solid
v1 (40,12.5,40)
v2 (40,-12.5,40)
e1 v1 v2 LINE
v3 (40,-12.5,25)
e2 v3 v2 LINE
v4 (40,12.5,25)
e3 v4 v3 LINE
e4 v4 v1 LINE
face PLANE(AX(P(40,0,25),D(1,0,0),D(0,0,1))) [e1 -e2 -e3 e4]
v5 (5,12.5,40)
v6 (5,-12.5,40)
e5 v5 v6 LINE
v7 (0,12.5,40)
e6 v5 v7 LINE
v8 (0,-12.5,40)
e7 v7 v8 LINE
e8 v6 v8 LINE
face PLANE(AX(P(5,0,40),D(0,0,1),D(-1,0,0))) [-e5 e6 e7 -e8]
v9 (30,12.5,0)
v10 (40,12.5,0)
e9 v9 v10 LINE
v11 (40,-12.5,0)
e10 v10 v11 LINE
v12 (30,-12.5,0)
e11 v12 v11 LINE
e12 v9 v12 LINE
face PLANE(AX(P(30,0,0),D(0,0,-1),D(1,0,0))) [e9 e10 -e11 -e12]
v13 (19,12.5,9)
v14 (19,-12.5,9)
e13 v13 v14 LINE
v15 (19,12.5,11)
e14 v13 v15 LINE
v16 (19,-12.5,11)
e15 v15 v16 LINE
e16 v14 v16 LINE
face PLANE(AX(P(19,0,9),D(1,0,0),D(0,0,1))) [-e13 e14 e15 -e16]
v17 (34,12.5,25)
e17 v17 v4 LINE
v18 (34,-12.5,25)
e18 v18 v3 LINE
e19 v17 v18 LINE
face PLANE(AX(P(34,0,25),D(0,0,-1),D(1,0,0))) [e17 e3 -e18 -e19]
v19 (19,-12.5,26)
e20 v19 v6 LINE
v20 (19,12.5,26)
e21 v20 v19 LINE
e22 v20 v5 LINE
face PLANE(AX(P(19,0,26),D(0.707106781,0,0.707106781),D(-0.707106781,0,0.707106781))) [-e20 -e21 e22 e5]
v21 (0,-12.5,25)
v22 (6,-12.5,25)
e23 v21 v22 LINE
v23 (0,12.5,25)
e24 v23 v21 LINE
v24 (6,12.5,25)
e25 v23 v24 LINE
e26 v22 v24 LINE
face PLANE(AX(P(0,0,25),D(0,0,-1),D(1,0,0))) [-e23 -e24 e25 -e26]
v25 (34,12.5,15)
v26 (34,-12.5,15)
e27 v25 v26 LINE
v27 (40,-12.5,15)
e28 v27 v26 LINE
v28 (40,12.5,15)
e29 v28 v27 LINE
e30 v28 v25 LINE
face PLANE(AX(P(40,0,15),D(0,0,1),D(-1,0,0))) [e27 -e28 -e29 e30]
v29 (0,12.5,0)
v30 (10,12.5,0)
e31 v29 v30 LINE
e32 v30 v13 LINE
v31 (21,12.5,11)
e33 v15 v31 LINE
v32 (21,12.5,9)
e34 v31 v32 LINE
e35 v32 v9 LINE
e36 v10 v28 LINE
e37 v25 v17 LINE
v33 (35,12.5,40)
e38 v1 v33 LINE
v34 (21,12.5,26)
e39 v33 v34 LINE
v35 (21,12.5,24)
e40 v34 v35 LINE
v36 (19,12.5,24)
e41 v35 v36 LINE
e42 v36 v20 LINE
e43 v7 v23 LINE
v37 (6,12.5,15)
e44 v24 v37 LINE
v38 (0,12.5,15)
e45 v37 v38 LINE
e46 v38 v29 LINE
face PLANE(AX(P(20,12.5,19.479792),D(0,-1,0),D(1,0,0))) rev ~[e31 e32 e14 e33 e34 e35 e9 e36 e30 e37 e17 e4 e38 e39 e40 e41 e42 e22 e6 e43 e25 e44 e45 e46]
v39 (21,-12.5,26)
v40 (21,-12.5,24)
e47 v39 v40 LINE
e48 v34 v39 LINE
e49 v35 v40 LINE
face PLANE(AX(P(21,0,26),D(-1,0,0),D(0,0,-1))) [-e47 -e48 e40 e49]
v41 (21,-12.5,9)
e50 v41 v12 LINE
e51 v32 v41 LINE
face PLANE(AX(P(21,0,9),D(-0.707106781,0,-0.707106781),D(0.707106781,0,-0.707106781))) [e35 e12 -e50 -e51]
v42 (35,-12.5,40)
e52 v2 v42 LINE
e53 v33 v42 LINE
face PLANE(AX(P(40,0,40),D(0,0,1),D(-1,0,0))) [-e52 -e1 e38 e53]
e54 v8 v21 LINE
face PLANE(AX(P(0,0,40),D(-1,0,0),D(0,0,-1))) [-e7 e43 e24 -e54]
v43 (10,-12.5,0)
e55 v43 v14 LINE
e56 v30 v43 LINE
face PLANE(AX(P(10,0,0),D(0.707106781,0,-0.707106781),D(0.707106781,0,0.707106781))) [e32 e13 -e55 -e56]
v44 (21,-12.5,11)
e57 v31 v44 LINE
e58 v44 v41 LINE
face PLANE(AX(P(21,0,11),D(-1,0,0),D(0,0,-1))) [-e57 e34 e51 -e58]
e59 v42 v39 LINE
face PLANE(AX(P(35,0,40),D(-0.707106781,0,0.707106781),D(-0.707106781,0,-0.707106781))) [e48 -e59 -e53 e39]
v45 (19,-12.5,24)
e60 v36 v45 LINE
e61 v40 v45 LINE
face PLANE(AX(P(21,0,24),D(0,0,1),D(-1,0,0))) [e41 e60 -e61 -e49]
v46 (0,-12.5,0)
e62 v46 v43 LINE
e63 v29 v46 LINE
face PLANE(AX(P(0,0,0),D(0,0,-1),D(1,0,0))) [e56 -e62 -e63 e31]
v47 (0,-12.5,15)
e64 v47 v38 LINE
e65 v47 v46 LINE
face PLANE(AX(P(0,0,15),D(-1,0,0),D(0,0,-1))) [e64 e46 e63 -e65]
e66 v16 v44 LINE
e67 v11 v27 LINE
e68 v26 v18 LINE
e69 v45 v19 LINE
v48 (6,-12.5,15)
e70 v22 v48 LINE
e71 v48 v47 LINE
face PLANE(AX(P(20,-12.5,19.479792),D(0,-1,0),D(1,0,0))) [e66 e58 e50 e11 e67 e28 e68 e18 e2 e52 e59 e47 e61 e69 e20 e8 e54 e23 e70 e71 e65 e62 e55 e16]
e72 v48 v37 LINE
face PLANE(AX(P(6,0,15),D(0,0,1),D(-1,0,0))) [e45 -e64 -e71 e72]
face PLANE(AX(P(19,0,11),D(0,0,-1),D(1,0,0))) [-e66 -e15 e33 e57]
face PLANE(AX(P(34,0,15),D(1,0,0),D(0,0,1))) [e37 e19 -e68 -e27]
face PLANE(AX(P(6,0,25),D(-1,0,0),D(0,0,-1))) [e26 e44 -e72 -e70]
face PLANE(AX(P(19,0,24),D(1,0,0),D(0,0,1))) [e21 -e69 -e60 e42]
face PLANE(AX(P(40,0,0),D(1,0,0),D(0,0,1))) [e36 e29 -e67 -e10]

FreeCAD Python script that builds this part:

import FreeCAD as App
import Part
import Sketcher

V = App.Vector
Q = App.Units.Quantity

doc = App.newDocument("Part")
params = doc.addObject("Spreadsheet::Sheet", "Params")
for row, (alias, value) in enumerate([
    ("sketch1_width", "10 mm"),
    ("sketch1_width2", "2 mm"),
    ("sketch1_width3", "6 mm"),
    ("sketch1_width4", "5 mm"),
    ("sketch1_height", "15 mm"),
    ("pad1_length", "25 mm"),
], start=1):
    params.set(f"A{row}", alias)
    params.set(f"B{row}", "=" + value)
    params.setAlias(f"B{row}", alias)

body = doc.addObject("PartDesign::Body", "Body")

sketch1 = body.newObject("Sketcher::SketchObject", "Sketch")
sketch1.AttachmentSupport = (doc.getObject("XZ_Plane"), [""])
sketch1.MapMode = "FlatFace"
sketch1.addGeometry([
    Part.LineSegment(V(0, 15, 0), V(0, 0, 0)),
    Part.LineSegment(V(0, 0, 0), V(10, 0, 0)),
    Part.LineSegment(V(10, 0, 0), V(19, 9, 0)),
    Part.LineSegment(V(19, 9, 0), V(19, 11, 0)),
    Part.LineSegment(V(19, 11, 0), V(21, 11, 0)),
    Part.LineSegment(V(21, 11, 0), V(21, 9, 0)),
    Part.LineSegment(V(21, 9, 0), V(30, 0, 0)),
    Part.LineSegment(V(30, 0, 0), V(40, 0, 0)),
    Part.LineSegment(V(40, 0, 0), V(40, 15, 0)),
    Part.LineSegment(V(40, 15, 0), V(34, 15, 0)),
    Part.LineSegment(V(34, 15, 0), V(34, 25, 0)),
    Part.LineSegment(V(34, 25, 0), V(40, 25, 0)),
    Part.LineSegment(V(40, 25, 0), V(40, 40, 0)),
    Part.LineSegment(V(40, 40, 0), V(35, 40, 0)),
    Part.LineSegment(V(35, 40, 0), V(21, 26, 0)),
    Part.LineSegment(V(21, 26, 0), V(21, 24, 0)),
    Part.LineSegment(V(21, 24, 0), V(19, 24, 0)),
    Part.LineSegment(V(19, 24, 0), V(19, 26, 0)),
    Part.LineSegment(V(19, 26, 0), V(5, 40, 0)),
    Part.LineSegment(V(5, 40, 0), V(0, 40, 0)),
    Part.LineSegment(V(0, 40, 0), V(0, 25, 0)),
    Part.LineSegment(V(0, 25, 0), V(6, 25, 0)),
    Part.LineSegment(V(6, 25, 0), V(6, 15, 0)),
    Part.LineSegment(V(6, 15, 0), V(0, 15, 0)),
], False)
sketch1.addConstraint([
    Sketcher.Constraint("Coincident", 0, 2, 1, 1),
    Sketcher.Constraint("Coincident", 1, 2, 2, 1),
    Sketcher.Constraint("Coincident", 2, 2, 3, 1),
    Sketcher.Constraint("Coincident", 3, 2, 4, 1),
    Sketcher.Constraint("Coincident", 4, 2, 5, 1),
    Sketcher.Constraint("Coincident", 5, 2, 6, 1),
    Sketcher.Constraint("Coincident", 6, 2, 7, 1),
    Sketcher.Constraint("Coincident", 7, 2, 8, 1),
    Sketcher.Constraint("Coincident", 8, 2, 9, 1),
    Sketcher.Constraint("Coincident", 9, 2, 10, 1),
    Sketcher.Constraint("Coincident", 10, 2, 11, 1),
    Sketcher.Constraint("Coincident", 11, 2, 12, 1),
    Sketcher.Constraint("Coincident", 12, 2, 13, 1),
    Sketcher.Constraint("Coincident", 13, 2, 14, 1),
    Sketcher.Constraint("Coincident", 14, 2, 15, 1),
    Sketcher.Constraint("Coincident", 15, 2, 16, 1),
    Sketcher.Constraint("Coincident", 16, 2, 17, 1),
    Sketcher.Constraint("Coincident", 17, 2, 18, 1),
    Sketcher.Constraint("Coincident", 18, 2, 19, 1),
    Sketcher.Constraint("Coincident", 19, 2, 20, 1),
    Sketcher.Constraint("Coincident", 20, 2, 21, 1),
    Sketcher.Constraint("Coincident", 21, 2, 22, 1),
    Sketcher.Constraint("Coincident", 22, 2, 23, 1),
    Sketcher.Constraint("Coincident", 23, 2, 0, 1),
    Sketcher.Constraint("Vertical", 0),
    Sketcher.Constraint("Horizontal", 1),
    Sketcher.Constraint("Vertical", 3),
    Sketcher.Constraint("Horizontal", 4),
    Sketcher.Constraint("Vertical", 5),
    Sketcher.Constraint("Horizontal", 7),
    Sketcher.Constraint("Vertical", 8),
    Sketcher.Constraint("Horizontal", 9),
    Sketcher.Constraint("Vertical", 10),
    Sketcher.Constraint("Horizontal", 11),
    Sketcher.Constraint("Vertical", 12),
    Sketcher.Constraint("Horizontal", 13),
    Sketcher.Constraint("Vertical", 15),
    Sketcher.Constraint("Horizontal", 16),
    Sketcher.Constraint("Vertical", 17),
    Sketcher.Constraint("Horizontal", 19),
    Sketcher.Constraint("Vertical", 20),
    Sketcher.Constraint("Horizontal", 21),
    Sketcher.Constraint("Vertical", 22),
    Sketcher.Constraint("Horizontal", 23),
    Sketcher.Constraint("Coincident", 0, 2, -1, 1),
    Sketcher.Constraint("PointOnObject", 6, 2, -1),
    Sketcher.Constraint("PointOnObject", 19, 2, -2),
    Sketcher.Constraint("Perpendicular", 2, 6),
    Sketcher.Constraint("Perpendicular", 6, 14),
    Sketcher.Constraint("Perpendicular", 14, 18),
    Sketcher.Constraint("Horizontal", 2, 2, 5, 2),
    Sketcher.Constraint("Horizontal", 14, 2, 17, 2),
    Sketcher.Constraint("Horizontal", 13, 2, 18, 2),
    Sketcher.Constraint("Horizontal", 11, 2, 20, 2),
    Sketcher.Constraint("Horizontal", 9, 2, 22, 2),
    Sketcher.Constraint("Vertical", 8, 2, 11, 2),
    Sketcher.Constraint("Vertical", 5, 2, 14, 2),
    Sketcher.Constraint("Vertical", 3, 2, 16, 2),
    Sketcher.Constraint("Equal", 1, 7),
    Sketcher.Constraint("Equal", 13, 19),
    Sketcher.Constraint("Equal", 11, 21),
    Sketcher.Constraint("Equal", 16, 3),
    Sketcher.Constraint("Equal", 7, 10),
    Sketcher.Constraint("Equal", 8, 12),
    Sketcher.Constraint("Equal", 5, 15),
    Sketcher.Constraint("DistanceX", 1, 1, 1, 2, Q("10 mm")),
    Sketcher.Constraint("DistanceX", 4, 1, 4, 2, Q("2 mm")),
    Sketcher.Constraint("DistanceX", 9, 2, 9, 1, Q("6 mm")),
    Sketcher.Constraint("DistanceX", 13, 2, 13, 1, Q("5 mm")),
    Sketcher.Constraint("DistanceY", 0, 2, 0, 1, Q("15 mm")),
    Sketcher.Constraint("DistanceX", -1, 1, 2, 2, Q("19 mm")),
])
sketch1.setExpression("Constraints[65]", "Params.sketch1_width")
sketch1.setExpression("Constraints[66]", "Params.sketch1_width2")
sketch1.setExpression("Constraints[67]", "Params.sketch1_width3")
sketch1.setExpression("Constraints[68]", "Params.sketch1_width4")
sketch1.setExpression("Constraints[69]", "Params.sketch1_height")
pad1 = body.newObject("PartDesign::Pad", "Pad")
pad1.Profile = sketch1
pad1.setExpression("Length", "Params.pad1_length")
pad1.Midplane = True

doc.recompute()
